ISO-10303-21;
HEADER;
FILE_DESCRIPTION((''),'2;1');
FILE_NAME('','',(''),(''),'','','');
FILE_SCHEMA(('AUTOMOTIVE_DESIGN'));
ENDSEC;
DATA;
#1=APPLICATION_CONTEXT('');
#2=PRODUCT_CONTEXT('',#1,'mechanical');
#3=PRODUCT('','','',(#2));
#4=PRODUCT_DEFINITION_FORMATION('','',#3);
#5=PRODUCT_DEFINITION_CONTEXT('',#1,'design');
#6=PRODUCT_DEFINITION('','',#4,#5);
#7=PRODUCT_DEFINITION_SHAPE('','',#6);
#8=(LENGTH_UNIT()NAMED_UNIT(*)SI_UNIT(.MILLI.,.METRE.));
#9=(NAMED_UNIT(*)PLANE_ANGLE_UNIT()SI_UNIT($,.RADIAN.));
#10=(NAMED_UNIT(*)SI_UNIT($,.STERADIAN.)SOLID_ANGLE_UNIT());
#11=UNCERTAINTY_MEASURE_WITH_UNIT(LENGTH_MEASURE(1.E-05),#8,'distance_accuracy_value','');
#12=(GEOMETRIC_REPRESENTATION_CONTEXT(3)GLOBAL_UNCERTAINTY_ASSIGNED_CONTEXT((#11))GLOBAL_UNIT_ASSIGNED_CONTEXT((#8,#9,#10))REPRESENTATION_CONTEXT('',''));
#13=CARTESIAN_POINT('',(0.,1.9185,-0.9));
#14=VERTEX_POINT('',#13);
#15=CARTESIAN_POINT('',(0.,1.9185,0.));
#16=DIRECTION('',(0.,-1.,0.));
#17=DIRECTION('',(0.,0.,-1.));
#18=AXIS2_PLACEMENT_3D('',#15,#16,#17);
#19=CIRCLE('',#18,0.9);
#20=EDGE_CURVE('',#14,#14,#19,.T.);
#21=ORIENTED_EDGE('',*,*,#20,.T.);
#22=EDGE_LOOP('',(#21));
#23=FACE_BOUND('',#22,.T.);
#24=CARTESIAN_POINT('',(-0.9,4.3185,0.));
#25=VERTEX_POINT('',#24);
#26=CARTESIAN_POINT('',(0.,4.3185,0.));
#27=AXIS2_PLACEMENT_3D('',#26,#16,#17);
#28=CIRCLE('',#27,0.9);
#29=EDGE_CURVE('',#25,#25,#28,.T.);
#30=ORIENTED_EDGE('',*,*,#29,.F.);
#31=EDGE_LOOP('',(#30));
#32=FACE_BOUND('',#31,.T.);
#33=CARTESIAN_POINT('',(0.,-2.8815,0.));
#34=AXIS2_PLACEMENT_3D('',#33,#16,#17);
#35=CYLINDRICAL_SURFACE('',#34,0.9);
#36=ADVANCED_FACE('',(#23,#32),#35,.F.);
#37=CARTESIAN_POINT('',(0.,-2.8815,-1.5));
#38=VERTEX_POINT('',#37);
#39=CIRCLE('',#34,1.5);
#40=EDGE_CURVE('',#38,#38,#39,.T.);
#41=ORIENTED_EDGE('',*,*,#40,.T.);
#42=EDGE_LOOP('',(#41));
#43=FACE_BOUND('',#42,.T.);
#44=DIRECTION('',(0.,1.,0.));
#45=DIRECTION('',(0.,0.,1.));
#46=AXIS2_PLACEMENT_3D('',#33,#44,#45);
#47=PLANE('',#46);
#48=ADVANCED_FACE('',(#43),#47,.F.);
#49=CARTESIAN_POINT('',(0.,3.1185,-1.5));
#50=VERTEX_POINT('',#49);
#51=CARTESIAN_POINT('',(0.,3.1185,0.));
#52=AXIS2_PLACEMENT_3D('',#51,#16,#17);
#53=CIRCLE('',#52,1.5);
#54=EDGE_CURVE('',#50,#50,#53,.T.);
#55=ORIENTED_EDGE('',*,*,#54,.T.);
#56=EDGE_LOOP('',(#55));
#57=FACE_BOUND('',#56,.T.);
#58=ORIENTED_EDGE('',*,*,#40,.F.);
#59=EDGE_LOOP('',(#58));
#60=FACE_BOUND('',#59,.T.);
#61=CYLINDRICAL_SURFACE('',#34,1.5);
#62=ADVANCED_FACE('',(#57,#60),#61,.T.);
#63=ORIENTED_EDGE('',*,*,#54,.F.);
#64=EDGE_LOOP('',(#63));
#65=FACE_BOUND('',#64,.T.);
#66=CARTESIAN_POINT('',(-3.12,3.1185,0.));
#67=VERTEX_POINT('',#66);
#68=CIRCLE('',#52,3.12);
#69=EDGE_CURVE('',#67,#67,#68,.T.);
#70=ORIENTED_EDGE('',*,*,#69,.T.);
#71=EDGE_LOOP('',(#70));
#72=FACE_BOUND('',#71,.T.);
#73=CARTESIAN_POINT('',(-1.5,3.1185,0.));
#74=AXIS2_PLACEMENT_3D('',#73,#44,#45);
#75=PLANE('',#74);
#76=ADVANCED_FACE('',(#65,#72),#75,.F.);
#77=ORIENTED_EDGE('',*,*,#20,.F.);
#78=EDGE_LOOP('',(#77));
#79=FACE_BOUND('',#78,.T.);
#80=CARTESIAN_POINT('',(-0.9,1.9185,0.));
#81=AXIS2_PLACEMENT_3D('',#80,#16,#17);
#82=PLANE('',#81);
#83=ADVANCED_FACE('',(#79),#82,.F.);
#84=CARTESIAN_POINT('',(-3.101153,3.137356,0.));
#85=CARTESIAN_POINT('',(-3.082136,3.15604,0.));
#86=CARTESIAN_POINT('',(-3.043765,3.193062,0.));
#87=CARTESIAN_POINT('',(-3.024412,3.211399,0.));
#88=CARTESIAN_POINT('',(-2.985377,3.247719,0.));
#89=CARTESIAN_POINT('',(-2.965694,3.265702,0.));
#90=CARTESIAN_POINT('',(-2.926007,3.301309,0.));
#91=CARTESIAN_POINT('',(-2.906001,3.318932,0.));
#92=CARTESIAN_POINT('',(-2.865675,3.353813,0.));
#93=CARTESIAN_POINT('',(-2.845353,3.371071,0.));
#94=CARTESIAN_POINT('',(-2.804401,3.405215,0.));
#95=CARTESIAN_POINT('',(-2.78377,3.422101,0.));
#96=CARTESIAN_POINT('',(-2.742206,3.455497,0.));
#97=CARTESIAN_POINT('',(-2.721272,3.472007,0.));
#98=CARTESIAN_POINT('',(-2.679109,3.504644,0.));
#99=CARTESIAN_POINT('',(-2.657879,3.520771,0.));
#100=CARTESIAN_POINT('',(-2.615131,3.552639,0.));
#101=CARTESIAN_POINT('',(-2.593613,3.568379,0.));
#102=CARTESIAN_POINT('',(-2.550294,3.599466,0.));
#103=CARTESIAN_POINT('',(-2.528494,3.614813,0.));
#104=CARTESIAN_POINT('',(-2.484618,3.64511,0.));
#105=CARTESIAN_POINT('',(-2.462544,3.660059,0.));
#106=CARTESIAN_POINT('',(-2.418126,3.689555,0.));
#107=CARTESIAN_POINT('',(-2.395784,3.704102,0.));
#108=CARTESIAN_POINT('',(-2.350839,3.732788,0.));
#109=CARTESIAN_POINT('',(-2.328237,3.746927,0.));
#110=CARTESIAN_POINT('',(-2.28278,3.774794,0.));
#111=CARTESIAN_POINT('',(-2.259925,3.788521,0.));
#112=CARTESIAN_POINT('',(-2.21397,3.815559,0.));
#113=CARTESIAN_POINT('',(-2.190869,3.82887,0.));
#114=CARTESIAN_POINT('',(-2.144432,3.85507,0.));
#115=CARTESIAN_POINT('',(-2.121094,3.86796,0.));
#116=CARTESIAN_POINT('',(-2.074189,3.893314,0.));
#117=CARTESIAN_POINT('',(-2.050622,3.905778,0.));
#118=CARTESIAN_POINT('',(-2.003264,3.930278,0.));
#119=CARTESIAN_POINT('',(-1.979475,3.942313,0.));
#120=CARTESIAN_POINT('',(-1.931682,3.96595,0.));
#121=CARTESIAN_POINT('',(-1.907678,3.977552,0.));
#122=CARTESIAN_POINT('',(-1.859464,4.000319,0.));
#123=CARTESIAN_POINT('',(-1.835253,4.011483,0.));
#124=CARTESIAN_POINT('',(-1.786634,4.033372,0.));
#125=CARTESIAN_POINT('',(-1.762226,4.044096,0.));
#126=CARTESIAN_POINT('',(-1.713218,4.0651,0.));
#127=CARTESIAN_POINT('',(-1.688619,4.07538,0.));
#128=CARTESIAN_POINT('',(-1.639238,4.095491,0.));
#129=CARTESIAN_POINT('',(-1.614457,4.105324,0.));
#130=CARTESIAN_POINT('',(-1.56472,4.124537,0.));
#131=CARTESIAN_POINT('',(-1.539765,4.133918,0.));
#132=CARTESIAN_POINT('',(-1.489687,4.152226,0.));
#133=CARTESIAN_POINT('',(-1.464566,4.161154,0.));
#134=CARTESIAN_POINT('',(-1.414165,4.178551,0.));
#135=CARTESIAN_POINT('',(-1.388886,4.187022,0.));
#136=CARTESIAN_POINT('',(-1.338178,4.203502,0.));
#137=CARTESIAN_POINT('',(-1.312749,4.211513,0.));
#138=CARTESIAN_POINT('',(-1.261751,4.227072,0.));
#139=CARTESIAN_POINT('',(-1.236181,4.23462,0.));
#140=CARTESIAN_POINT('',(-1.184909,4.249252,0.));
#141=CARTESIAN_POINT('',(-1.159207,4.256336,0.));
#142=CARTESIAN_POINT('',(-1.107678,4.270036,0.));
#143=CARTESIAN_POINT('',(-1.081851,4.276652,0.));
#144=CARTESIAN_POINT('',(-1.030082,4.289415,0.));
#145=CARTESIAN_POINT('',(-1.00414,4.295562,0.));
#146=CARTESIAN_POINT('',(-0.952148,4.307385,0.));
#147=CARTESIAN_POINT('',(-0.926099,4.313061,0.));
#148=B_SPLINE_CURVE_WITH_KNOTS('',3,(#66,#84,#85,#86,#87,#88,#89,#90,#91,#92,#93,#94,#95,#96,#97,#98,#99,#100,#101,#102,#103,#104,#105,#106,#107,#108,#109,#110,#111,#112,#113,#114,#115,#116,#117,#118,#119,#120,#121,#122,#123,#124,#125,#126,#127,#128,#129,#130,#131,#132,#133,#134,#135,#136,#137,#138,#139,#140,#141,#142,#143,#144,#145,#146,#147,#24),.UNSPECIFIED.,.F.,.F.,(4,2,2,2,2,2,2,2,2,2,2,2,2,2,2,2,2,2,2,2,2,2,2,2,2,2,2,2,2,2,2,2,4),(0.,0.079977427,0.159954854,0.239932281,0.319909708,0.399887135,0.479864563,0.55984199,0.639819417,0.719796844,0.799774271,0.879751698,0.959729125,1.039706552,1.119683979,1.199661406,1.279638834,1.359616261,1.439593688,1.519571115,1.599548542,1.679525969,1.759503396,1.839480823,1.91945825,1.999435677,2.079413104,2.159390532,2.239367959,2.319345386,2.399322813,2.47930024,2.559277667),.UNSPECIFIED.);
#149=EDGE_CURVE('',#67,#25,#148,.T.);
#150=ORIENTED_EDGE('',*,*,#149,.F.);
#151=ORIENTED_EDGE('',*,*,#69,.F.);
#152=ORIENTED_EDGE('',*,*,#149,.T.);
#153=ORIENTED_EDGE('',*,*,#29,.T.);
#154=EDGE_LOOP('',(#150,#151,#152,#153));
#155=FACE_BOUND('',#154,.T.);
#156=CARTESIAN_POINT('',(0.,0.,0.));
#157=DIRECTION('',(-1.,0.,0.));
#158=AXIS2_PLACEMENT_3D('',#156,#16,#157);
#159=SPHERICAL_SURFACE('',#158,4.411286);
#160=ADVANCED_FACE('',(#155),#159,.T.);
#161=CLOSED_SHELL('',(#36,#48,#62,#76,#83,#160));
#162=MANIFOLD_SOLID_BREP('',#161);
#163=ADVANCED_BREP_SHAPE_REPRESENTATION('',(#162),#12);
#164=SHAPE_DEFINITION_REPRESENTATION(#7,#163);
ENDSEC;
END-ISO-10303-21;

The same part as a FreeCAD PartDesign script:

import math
import FreeCAD as App
import Part
import Sketcher

V = App.Vector
Q = App.Units.Quantity

doc = App.newDocument("Part")
body = doc.addObject("PartDesign::Body", "Body")

# Sketch on XY plane
sketch1 = body.newObject("Sketcher::SketchObject", "Sketch")
sketch1.AttachmentSupport = (doc.getObject("XY_Plane"), [""])
sketch1.MapMode = "FlatFace"
sketch1.addGeometry(Part.LineSegment(V(-1.5, -2.9, 0), V(0, -2.9, 0)), False)
sketch1.addGeometry(Part.LineSegment(V(0, -2.9, 0), V(0, 1.9, 0)), False)
sketch1.addGeometry(Part.LineSegment(V(0, 1.9, 0), V(-0.9, 1.9, 0)), False)
sketch1.addGeometry(Part.LineSegment(V(-0.9, 1.9, 0), V(-0.9, 4.3, 0)), False)
sketch1.addGeometry(Part.ArcOfCircle(Part.Circle(V(0, 0, 0), V(0, 0, 1), 4.4), math.radians(102), math.radians(135)), False)
sketch1.addGeometry(Part.LineSegment(V(-3.1, 3.1, 0), V(-1.5, 3.1, 0)), False)
sketch1.addGeometry(Part.LineSegment(V(-1.5, 3.1, 0), V(-1.5, -2.9, 0)), False)
sketch1.addConstraint(Sketcher.Constraint("Coincident", 0, 2, 1, 1))
sketch1.addConstraint(Sketcher.Constraint("Coincident", 1, 2, 2, 1))
sketch1.addConstraint(Sketcher.Constraint("Coincident", 2, 2, 3, 1))
sketch1.addConstraint(Sketcher.Constraint("Coincident", 3, 2, 4, 1))
sketch1.addConstraint(Sketcher.Constraint("Coincident", 4, 2, 5, 1))
sketch1.addConstraint(Sketcher.Constraint("Coincident", 5, 2, 6, 1))
sketch1.addConstraint(Sketcher.Constraint("Coincident", 6, 2, 0, 1))
sketch1.addConstraint(Sketcher.Constraint("Horizontal", 0))
sketch1.addConstraint(Sketcher.Constraint("Vertical", 1))
sketch1.addConstraint(Sketcher.Constraint("Horizontal", 2))
sketch1.addConstraint(Sketcher.Constraint("Vertical", 3))
sketch1.addConstraint(Sketcher.Constraint("Horizontal", 5))
sketch1.addConstraint(Sketcher.Constraint("Vertical", 6))
sketch1.addConstraint(Sketcher.Constraint("Coincident", 4, 3, -1, 1))
sketch1.addConstraint(Sketcher.Constraint("PointOnObject", 0, 2, -2))
sketch1.addConstraint(Sketcher.Constraint("DistanceY", 6, 2, 6, 1, Q("6 mm")))
sketch1.addConstraint(Sketcher.Constraint("DistanceX", 0, 1, 0, 2, Q("1.5 mm")))
sketch1.addConstraint(Sketcher.Constraint("DistanceX", 2, 2, 2, 1, Q("0.9 mm")))
sketch1.addConstraint(Sketcher.Constraint("DistanceY", 1, 1, 1, 2, Q("4.8 mm")))
sketch1.addConstraint(Sketcher.Constraint("DistanceY", 3, 1, 3, 2, Q("2.4 mm")))
sketch1.addConstraint(Sketcher.Constraint("DistanceX", 5, 1, 5, 2, Q("1.62 mm")))
revolution = body.newObject("PartDesign::Revolution", "Revolution")
revolution.Profile = sketch1
revolution.ReferenceAxis = (sketch1, ["V_Axis"])
revolution.Angle = 360

doc.recompute()
